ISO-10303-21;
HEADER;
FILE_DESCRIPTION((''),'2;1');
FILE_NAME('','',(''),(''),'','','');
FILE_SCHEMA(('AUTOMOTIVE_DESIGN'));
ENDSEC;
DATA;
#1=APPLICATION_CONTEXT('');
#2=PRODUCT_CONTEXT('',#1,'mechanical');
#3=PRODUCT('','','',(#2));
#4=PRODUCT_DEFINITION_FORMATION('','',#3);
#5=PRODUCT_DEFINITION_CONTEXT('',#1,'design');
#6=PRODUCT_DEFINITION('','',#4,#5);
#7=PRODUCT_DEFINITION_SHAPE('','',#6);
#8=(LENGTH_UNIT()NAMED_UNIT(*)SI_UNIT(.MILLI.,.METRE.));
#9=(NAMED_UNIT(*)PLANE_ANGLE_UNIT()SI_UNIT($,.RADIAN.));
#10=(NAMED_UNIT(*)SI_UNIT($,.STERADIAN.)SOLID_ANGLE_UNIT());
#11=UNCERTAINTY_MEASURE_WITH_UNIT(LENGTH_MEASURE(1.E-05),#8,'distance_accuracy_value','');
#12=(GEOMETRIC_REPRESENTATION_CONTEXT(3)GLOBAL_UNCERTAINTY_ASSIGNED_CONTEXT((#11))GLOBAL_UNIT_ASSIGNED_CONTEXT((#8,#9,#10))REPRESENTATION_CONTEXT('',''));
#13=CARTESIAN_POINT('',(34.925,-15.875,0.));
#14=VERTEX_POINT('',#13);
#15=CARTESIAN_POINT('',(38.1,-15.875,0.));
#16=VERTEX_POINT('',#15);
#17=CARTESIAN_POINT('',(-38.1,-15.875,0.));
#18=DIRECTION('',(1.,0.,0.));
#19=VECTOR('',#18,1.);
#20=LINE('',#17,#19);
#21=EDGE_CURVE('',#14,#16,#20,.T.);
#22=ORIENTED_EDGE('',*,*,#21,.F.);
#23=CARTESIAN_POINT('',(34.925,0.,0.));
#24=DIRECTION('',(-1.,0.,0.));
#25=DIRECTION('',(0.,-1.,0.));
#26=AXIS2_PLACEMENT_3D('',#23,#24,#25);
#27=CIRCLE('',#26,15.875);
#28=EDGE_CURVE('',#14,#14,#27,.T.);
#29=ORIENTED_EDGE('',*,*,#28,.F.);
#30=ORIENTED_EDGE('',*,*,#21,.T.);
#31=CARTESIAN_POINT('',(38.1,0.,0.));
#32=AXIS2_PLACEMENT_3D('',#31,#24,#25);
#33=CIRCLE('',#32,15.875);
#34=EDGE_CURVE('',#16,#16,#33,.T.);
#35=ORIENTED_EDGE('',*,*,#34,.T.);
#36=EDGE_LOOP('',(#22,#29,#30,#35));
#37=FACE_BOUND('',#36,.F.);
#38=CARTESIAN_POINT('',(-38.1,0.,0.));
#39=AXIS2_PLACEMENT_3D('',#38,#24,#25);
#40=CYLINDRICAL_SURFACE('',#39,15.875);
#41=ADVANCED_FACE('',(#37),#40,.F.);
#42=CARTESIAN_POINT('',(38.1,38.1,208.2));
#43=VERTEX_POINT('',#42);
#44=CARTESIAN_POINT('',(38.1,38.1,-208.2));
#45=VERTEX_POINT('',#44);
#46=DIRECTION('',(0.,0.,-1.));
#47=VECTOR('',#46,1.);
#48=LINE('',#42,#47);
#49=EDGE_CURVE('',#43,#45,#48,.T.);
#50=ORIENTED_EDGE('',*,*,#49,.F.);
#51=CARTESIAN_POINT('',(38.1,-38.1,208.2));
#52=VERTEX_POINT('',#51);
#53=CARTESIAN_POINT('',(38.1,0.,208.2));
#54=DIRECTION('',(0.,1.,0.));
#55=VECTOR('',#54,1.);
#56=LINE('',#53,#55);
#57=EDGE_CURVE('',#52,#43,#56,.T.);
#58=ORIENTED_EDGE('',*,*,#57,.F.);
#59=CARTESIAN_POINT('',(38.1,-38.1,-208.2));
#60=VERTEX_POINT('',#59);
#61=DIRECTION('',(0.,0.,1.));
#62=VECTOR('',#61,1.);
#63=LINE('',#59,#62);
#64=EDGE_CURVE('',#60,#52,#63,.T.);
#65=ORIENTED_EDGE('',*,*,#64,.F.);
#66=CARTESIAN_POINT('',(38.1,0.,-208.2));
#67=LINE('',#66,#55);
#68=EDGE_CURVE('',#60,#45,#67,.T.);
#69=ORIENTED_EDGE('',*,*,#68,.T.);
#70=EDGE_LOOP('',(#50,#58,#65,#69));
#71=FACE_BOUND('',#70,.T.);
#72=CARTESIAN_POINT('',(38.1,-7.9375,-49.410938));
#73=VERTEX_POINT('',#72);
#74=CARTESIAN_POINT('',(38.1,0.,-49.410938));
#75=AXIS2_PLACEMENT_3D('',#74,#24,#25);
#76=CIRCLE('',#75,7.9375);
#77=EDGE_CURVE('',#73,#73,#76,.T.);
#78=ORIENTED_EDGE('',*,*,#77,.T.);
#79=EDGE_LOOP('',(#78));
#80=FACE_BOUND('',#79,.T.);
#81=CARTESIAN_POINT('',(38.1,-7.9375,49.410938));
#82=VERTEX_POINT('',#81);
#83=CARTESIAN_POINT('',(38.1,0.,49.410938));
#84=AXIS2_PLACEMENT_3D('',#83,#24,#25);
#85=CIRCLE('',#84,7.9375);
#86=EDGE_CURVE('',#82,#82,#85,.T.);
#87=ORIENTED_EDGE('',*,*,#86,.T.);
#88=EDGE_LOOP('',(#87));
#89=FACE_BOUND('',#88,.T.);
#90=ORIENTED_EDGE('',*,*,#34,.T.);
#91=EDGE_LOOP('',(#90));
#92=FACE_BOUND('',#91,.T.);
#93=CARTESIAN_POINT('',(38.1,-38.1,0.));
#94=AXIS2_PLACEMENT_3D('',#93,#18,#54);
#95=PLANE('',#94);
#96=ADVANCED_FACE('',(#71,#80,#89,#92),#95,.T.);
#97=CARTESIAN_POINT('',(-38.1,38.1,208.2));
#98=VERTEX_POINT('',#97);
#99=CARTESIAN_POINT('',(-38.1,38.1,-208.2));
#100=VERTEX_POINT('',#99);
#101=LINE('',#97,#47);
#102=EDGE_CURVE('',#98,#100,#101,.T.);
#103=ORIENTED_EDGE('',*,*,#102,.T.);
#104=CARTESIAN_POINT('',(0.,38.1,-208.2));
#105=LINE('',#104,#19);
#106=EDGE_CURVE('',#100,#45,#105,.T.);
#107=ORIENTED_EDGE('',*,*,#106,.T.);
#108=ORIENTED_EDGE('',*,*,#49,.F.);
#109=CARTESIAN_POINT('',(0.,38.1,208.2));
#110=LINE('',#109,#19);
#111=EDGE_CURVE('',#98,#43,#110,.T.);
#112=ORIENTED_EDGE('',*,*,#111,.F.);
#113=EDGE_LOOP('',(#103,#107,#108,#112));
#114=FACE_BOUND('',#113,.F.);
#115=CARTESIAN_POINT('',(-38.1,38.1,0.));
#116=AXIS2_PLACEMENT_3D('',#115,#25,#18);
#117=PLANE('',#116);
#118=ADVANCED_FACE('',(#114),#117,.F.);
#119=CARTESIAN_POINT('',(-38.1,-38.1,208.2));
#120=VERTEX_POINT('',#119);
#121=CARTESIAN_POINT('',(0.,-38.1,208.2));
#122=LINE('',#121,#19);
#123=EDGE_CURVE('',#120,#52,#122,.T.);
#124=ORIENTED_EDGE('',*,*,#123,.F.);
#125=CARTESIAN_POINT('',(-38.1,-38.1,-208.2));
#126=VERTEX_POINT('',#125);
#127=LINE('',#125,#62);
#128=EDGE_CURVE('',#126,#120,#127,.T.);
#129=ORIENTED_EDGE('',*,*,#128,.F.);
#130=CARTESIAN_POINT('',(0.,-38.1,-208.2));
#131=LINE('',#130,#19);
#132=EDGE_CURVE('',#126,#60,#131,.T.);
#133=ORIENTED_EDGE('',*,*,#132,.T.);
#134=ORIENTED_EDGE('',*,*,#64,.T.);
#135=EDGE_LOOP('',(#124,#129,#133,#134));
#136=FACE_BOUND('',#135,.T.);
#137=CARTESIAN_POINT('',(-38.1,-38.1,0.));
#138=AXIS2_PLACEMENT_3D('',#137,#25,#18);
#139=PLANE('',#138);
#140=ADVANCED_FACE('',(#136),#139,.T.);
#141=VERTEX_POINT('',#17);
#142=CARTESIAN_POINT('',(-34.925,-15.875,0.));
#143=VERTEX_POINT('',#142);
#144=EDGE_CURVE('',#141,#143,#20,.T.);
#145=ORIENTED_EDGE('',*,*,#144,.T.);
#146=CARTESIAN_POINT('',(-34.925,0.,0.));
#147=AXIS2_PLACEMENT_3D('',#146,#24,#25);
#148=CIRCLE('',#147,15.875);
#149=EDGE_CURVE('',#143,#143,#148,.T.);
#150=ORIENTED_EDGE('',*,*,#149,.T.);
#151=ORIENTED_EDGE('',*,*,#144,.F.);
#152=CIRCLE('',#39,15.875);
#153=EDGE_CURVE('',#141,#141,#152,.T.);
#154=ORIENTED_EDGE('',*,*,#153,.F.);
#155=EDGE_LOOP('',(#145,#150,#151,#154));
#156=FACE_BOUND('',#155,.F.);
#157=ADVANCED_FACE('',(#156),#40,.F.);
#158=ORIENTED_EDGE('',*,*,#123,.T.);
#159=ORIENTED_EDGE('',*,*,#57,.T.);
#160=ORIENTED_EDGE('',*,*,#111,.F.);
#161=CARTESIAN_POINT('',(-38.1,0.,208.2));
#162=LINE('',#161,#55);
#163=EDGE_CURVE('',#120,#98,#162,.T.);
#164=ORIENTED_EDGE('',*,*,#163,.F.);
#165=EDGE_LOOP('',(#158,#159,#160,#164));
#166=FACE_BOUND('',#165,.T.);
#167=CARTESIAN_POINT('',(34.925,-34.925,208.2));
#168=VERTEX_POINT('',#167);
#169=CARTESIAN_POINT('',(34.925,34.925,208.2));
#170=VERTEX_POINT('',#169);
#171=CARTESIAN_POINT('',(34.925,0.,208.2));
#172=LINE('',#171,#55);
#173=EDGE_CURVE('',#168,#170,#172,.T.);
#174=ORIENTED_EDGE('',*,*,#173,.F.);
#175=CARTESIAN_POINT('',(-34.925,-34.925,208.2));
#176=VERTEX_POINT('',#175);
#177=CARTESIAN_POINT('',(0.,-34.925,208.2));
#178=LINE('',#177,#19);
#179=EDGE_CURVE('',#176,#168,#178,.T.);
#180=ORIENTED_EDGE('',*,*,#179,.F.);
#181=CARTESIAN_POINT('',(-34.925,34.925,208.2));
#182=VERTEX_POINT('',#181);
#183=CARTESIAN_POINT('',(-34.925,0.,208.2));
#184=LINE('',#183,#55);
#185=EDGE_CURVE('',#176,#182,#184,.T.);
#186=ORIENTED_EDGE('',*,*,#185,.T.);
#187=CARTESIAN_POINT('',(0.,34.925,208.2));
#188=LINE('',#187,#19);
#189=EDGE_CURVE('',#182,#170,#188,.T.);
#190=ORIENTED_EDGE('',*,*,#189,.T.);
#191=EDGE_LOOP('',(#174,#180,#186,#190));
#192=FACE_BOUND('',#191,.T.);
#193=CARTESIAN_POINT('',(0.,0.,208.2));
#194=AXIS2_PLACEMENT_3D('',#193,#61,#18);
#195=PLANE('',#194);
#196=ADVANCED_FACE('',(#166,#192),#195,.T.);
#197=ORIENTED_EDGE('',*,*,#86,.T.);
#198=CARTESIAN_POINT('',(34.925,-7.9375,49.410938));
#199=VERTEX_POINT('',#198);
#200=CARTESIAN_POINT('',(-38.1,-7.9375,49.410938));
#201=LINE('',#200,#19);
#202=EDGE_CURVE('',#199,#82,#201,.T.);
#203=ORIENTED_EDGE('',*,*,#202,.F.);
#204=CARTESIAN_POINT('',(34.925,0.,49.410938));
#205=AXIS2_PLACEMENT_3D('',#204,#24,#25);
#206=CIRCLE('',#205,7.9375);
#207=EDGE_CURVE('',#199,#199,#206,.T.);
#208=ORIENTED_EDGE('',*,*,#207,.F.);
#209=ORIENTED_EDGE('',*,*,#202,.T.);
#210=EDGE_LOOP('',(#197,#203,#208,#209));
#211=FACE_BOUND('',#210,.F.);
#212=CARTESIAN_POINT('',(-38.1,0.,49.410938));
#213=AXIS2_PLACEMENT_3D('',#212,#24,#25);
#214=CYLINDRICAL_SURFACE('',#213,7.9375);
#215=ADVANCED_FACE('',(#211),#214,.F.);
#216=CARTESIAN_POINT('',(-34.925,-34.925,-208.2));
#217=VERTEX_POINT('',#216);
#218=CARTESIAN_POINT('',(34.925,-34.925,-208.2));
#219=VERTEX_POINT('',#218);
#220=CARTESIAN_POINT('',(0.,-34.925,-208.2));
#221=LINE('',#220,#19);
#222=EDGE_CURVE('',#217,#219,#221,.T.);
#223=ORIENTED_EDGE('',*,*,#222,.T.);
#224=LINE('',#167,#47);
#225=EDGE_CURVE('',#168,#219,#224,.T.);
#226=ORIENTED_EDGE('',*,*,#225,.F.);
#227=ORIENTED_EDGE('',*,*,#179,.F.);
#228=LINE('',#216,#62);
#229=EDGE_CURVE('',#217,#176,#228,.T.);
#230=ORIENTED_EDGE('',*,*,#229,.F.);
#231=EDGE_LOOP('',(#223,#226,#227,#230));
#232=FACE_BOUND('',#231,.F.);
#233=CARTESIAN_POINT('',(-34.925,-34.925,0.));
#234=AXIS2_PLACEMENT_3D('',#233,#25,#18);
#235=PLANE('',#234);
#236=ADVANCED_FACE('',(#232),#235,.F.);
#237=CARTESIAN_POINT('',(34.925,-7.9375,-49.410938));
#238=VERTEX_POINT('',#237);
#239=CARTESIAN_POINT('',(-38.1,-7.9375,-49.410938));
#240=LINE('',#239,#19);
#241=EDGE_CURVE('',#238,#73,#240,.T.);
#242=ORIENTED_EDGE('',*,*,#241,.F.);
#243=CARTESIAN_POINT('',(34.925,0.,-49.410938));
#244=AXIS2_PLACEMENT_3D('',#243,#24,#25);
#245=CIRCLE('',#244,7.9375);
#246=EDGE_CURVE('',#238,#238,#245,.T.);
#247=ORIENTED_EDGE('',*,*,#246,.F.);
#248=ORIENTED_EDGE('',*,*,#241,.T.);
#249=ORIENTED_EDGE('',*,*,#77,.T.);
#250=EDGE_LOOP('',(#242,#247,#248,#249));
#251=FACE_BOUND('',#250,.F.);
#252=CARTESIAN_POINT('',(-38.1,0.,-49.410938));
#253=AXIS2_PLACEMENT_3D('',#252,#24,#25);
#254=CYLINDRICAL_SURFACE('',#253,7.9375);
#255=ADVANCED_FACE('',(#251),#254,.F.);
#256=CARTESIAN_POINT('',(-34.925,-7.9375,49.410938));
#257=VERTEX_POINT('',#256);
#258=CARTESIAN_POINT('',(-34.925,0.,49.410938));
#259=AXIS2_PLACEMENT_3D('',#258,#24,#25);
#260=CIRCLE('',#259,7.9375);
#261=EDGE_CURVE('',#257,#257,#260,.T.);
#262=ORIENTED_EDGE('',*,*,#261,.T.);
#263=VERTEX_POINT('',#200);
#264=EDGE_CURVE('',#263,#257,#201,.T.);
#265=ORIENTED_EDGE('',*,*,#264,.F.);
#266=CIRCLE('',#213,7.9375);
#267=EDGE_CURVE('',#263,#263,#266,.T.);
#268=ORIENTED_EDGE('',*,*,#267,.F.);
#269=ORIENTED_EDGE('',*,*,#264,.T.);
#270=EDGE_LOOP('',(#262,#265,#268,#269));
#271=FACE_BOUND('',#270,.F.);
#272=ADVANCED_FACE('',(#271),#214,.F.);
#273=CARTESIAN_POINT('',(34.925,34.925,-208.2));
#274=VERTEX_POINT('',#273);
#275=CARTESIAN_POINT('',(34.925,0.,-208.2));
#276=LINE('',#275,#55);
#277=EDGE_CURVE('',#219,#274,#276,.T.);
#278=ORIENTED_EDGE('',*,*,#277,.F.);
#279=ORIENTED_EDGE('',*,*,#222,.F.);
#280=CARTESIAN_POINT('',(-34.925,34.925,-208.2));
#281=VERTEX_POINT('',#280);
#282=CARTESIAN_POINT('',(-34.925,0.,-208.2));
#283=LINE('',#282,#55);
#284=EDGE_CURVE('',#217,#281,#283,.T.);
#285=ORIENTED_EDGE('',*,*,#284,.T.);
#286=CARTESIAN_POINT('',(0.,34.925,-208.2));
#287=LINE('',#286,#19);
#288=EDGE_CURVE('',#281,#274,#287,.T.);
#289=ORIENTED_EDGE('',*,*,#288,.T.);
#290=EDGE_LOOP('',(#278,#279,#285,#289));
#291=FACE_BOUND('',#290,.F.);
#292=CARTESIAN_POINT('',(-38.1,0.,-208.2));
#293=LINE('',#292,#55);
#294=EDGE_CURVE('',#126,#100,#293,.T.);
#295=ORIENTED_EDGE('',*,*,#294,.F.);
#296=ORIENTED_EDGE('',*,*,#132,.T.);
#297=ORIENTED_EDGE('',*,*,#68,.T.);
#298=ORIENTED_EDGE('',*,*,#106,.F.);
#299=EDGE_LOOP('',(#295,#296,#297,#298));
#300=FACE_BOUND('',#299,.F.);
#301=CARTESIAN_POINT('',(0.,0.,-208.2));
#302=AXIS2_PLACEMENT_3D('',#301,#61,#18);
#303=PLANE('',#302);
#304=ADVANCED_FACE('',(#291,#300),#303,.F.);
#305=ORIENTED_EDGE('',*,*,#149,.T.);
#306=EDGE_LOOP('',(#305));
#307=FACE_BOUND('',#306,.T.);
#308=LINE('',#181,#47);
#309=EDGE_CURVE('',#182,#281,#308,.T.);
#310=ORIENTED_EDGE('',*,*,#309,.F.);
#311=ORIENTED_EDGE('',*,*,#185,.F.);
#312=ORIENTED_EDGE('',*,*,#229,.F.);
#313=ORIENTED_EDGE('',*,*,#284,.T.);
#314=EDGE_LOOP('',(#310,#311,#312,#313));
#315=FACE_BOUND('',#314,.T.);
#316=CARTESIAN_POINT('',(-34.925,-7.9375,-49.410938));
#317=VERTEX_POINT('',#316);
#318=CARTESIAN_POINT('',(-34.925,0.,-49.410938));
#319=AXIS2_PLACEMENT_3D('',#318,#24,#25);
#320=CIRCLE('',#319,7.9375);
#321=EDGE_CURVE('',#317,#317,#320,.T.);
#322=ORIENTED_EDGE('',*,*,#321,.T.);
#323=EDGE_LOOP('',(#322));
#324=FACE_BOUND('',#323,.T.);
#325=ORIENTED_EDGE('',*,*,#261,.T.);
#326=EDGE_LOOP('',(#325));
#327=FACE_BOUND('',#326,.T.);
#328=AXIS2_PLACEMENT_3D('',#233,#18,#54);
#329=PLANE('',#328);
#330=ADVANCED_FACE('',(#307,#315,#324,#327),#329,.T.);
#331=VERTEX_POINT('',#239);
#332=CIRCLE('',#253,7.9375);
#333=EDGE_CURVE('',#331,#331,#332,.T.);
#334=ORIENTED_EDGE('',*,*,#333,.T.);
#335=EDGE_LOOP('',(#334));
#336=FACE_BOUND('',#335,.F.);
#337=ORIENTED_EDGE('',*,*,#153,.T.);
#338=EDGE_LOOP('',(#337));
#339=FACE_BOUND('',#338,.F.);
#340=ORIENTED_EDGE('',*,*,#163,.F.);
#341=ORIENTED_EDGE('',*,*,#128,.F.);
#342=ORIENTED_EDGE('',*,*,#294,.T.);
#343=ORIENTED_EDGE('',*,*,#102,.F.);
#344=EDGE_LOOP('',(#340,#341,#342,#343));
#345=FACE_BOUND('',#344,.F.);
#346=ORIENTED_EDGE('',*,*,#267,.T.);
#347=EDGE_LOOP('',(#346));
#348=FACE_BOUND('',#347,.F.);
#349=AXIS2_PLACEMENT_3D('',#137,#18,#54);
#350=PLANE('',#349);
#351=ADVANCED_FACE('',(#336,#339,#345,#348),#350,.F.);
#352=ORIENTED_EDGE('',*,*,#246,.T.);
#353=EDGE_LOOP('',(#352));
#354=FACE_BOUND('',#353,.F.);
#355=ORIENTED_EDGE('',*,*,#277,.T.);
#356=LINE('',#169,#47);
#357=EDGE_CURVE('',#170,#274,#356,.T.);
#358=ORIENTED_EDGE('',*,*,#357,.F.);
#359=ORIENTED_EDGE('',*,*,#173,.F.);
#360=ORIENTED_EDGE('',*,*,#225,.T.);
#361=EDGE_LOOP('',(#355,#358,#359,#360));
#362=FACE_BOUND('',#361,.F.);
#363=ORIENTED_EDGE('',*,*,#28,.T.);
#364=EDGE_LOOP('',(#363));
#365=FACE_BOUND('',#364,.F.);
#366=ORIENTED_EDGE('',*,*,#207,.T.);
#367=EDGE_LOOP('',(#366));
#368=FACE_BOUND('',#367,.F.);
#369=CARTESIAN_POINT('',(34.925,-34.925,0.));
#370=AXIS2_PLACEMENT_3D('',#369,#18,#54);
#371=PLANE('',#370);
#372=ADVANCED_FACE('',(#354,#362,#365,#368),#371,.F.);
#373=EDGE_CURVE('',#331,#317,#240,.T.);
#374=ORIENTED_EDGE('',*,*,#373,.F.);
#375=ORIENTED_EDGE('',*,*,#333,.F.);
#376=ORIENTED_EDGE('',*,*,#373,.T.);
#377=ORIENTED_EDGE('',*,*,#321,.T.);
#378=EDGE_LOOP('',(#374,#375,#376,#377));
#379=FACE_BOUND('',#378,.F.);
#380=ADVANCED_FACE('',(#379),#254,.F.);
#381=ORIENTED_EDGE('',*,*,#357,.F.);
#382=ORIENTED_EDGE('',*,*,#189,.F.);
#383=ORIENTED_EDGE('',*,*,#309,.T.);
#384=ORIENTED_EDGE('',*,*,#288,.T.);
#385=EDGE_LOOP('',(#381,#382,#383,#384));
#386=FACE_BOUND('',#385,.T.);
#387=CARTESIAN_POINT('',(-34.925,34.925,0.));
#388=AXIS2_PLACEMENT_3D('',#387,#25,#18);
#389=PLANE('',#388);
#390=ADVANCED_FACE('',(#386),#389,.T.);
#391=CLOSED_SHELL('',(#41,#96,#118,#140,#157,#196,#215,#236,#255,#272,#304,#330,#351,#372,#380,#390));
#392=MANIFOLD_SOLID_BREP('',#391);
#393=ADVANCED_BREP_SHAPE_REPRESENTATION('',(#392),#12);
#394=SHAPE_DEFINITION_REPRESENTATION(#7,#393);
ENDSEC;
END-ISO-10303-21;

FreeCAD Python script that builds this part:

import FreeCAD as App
import Part
import Sketcher

V = App.Vector
Q = App.Units.Quantity

doc = App.newDocument("Part")
params = doc.addObject("Spreadsheet::Sheet", "Params")
for row, (alias, value) in enumerate([
    ("sketch1_width", "3 in"),
    ("sketch1_width2", "2.75 in"),
    ("pad1_length", "416.4 mm"),
    ("sketch2_diameter", "1.25 in"),
    ("sketch2_diameter2", "0.625 in"),
], start=1):
    params.set(f"A{row}", alias)
    params.set(f"B{row}", "=" + value)
    params.setAlias(f"B{row}", alias)

body = doc.addObject("PartDesign::Body", "Body")

sketch1 = body.newObject("Sketcher::SketchObject", "Sketch")
sketch1.AttachmentSupport = (doc.getObject("XY_Plane"), [""])
sketch1.MapMode = "FlatFace"
sketch1.addGeometry([
    Part.LineSegment(V(-38, 38, 0), V(-38, -38, 0)),
    Part.LineSegment(V(-38, -38, 0), V(38, -38, 0)),
    Part.LineSegment(V(38, -38, 0), V(38, 38, 0)),
    Part.LineSegment(V(38, 38, 0), V(-38, 38, 0)),
    Part.LineSegment(V(35, -35, 0), V(-35, -35, 0)),
    Part.LineSegment(V(-35, -35, 0), V(-35, 35, 0)),
    Part.LineSegment(V(-35, 35, 0), V(35, 35, 0)),
    Part.LineSegment(V(35, 35, 0), V(35, -35, 0)),
], False)
sketch1.addConstraint([
    Sketcher.Constraint("Coincident", 0, 2, 1, 1),
    Sketcher.Constraint("Coincident", 1, 2, 2, 1),
    Sketcher.Constraint("Coincident", 2, 2, 3, 1),
    Sketcher.Constraint("Coincident", 3, 2, 0, 1),
    Sketcher.Constraint("Coincident", 4, 2, 5, 1),
    Sketcher.Constraint("Coincident", 5, 2, 6, 1),
    Sketcher.Constraint("Coincident", 6, 2, 7, 1),
    Sketcher.Constraint("Coincident", 7, 2, 4, 1),
    Sketcher.Constraint("Vertical", 0),
    Sketcher.Constraint("Horizontal", 1),
    Sketcher.Constraint("Vertical", 2),
    Sketcher.Constraint("Horizontal", 3),
    Sketcher.Constraint("Horizontal", 4),
    Sketcher.Constraint("Vertical", 5),
    Sketcher.Constraint("Horizontal", 6),
    Sketcher.Constraint("Vertical", 7),
    Sketcher.Constraint("Symmetric", 0, 2, 2, 2, -1, 1),
    Sketcher.Constraint("Symmetric", 4, 2, 6, 2, -1, 1),
    Sketcher.Constraint("Equal", 3, 0),
    Sketcher.Constraint("Equal", 6, 5),
    Sketcher.Constraint("DistanceX", 1, 1, 1, 2, Q("3 in")),
    Sketcher.Constraint("DistanceX", 4, 2, 4, 1, Q("2.75 in")),
])
sketch1.setExpression("Constraints[20]", "Params.sketch1_width")
sketch1.setExpression("Constraints[21]", "Params.sketch1_width2")
pad1 = body.newObject("PartDesign::Pad", "Pad")
pad1.Profile = sketch1
pad1.setExpression("Length", "Params.pad1_length")
pad1.Midplane = True

sketch2 = body.newObject("Sketcher::SketchObject", "Sketch001")
sketch2.AttachmentSupport = (doc.getObject("YZ_Plane"), [""])
sketch2.MapMode = "FlatFace"
sketch2.AttachmentOffset = App.Placement(V(0, 0, -1.5 * 25.4), App.Rotation())
sketch2.addGeometry([
    Part.Circle(V(0, 0, 0), V(0, 0, 1), 16),
    Part.Circle(V(0, -49, 0), V(0, 0, 1), 8),
    Part.Circle(V(0, 49, 0), V(0, 0, 1), 8),
], False)
sketch2.addConstraint([
    Sketcher.Constraint("Coincident", 0, 3, -1, 1),
    Sketcher.Constraint("Equal", 1, 2),
    Sketcher.Constraint("Symmetric", 1, 3, 2, 3, -1, 1),
    Sketcher.Constraint("PointOnObject", 1, 3, -2),
    Sketcher.Constraint("Diameter", 0, Q("1.25 in")),
    Sketcher.Constraint("Diameter", 1, Q("0.625 in")),
    Sketcher.Constraint("DistanceY", 1, 3, 2, 3, Q("3.890625 in")),
])
sketch2.setExpression("Constraints[4]", "Params.sketch2_diameter")
sketch2.setExpression("Constraints[5]", "Params.sketch2_diameter2")
pocket1 = body.newObject("PartDesign::Pocket", "Pocket")
pocket1.Profile = sketch2
pocket1.Type = "ThroughAll"
pocket1.Reversed = True

doc.recompute()
